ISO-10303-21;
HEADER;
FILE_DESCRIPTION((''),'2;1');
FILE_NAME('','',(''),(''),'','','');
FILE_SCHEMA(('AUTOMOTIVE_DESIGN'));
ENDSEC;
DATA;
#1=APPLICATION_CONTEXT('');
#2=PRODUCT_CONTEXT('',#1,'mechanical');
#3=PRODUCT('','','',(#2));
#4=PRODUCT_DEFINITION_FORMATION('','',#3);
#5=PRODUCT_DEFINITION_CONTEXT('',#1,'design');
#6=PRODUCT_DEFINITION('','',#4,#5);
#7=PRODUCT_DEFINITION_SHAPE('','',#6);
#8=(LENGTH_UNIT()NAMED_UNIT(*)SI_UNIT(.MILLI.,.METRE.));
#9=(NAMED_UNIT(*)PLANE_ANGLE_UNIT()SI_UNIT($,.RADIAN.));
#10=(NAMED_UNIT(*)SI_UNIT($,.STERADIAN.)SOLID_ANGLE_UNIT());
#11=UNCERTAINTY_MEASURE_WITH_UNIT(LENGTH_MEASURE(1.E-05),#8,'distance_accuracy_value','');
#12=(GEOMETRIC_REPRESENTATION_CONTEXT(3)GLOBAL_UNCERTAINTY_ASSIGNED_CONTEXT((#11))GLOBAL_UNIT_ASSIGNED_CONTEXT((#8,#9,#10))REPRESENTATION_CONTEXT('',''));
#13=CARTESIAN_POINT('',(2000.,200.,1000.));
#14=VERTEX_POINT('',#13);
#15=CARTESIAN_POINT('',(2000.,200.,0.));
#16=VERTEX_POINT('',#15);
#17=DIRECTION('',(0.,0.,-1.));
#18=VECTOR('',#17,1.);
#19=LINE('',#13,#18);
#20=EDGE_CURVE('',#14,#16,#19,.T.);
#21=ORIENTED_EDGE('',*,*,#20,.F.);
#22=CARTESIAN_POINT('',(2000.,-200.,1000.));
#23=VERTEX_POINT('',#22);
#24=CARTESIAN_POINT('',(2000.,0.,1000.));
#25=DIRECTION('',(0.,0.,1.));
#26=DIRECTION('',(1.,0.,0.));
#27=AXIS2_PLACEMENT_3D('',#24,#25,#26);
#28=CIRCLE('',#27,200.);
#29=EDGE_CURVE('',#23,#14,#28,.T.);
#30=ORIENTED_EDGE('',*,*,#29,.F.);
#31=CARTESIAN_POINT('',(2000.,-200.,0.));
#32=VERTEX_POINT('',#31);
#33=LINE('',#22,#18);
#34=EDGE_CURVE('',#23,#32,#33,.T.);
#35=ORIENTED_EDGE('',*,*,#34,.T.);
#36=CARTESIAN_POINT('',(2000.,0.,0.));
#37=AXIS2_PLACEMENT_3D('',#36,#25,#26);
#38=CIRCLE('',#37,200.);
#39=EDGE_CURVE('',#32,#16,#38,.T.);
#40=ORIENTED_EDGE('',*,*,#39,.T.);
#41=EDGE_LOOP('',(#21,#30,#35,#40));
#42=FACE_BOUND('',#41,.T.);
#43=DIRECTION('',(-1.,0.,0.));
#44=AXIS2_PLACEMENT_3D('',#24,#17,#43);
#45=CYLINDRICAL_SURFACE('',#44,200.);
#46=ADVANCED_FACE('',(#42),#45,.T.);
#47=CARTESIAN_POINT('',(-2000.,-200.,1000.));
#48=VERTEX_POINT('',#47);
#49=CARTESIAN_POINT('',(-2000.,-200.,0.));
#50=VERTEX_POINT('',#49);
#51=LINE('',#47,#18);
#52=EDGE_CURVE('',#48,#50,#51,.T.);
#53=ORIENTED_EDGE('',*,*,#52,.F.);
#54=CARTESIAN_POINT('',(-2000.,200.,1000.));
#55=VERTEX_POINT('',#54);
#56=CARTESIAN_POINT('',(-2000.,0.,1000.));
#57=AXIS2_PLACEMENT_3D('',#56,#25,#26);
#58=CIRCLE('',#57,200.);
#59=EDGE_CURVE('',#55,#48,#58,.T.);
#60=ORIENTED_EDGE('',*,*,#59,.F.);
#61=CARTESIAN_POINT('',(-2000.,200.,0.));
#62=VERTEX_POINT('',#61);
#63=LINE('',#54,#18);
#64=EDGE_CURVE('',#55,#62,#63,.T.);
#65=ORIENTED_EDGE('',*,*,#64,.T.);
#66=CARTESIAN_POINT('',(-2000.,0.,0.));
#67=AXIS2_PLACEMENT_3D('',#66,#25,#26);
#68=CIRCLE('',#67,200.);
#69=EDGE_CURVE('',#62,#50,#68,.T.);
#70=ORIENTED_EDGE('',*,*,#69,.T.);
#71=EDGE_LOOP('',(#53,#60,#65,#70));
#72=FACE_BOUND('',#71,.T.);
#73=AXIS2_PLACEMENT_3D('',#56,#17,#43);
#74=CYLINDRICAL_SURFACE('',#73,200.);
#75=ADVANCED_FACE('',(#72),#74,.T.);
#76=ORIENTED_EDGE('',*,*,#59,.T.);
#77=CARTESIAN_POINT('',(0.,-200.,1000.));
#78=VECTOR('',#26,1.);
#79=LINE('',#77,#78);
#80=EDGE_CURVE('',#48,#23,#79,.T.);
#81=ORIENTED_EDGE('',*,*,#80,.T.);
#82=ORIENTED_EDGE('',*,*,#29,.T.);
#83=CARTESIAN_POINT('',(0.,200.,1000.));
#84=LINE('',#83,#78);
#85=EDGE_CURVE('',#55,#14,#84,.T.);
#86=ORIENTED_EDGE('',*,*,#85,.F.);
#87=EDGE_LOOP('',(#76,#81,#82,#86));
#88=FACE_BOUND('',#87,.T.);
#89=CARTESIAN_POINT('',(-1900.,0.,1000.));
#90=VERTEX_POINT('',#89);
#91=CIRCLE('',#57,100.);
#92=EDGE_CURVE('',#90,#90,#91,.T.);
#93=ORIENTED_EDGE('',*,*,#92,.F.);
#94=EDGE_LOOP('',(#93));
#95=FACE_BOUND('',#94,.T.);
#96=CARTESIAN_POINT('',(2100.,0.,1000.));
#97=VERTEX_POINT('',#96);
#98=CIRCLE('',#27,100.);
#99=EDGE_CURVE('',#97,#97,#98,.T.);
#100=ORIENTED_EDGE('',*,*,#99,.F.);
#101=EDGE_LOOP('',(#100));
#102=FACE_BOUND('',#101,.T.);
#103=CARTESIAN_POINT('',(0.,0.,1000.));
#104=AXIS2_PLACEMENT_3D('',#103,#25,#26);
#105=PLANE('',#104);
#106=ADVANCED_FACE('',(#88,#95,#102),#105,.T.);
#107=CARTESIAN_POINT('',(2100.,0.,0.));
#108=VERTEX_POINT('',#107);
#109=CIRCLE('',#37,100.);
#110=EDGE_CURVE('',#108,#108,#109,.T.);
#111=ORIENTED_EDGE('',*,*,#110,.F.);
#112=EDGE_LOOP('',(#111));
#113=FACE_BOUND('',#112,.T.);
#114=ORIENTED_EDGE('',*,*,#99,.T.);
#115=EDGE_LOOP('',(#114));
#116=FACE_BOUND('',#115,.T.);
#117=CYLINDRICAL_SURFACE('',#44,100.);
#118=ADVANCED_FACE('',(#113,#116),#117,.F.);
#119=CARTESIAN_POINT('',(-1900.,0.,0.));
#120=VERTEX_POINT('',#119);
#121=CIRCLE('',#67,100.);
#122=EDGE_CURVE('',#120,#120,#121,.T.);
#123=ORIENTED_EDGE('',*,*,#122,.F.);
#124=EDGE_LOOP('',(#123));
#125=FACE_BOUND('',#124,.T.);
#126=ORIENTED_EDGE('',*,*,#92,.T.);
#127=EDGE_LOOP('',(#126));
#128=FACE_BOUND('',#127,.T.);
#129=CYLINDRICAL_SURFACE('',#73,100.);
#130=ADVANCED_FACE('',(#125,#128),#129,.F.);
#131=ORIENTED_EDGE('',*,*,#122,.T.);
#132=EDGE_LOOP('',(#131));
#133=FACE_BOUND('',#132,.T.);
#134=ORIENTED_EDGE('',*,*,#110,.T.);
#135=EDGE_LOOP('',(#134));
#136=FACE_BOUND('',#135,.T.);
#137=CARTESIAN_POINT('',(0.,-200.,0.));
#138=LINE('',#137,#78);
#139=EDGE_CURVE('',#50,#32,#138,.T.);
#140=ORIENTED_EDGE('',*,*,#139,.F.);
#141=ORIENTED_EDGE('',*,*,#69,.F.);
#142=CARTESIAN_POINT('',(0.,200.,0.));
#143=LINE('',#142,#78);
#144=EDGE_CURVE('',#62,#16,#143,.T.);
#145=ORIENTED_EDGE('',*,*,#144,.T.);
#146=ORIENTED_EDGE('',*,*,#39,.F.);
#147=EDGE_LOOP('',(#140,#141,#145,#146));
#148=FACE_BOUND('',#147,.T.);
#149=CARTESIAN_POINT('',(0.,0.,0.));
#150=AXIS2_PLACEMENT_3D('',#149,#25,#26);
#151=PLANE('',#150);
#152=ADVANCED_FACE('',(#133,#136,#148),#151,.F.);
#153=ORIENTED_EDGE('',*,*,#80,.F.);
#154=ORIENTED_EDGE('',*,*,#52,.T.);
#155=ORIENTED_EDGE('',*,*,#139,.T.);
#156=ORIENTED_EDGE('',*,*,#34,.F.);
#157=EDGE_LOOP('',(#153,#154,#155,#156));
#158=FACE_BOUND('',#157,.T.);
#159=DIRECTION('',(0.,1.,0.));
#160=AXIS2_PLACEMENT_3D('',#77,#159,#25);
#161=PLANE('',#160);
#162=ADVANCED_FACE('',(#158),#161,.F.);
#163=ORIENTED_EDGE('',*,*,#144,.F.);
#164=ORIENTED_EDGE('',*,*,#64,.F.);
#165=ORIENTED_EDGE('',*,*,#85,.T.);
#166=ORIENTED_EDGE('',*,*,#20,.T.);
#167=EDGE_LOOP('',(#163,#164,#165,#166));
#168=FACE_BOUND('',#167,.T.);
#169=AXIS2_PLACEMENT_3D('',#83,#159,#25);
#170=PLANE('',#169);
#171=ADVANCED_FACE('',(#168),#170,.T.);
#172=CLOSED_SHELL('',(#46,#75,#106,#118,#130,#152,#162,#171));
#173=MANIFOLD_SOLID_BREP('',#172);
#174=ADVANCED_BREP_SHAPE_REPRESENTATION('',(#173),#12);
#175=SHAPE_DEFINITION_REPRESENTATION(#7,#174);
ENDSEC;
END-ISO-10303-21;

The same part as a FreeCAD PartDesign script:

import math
import FreeCAD as App
import Part
import Sketcher
from FreeCAD import Vector

doc = App.newDocument("Part")
body = doc.addObject("PartDesign::Body", "Body")

# Sketch on XY plane
sketch1 = doc.addObject("Sketcher::SketchObject", "Sketch")
body.addObject(sketch1)
sketch1.AttachmentSupport = (doc.XY_Plane, [""])
sketch1.MapMode = "FlatFace"
sketch1.addGeometry([
    Part.LineSegment(Vector(-2000, -200, 0), Vector(2000, -200, 0)),  # 0
    Part.ArcOfCircle(Part.Circle(Vector(2000, 0, 0), Vector(0, 0, 1), 200), math.radians(-90), math.radians(0)),  # 1
    Part.ArcOfCircle(Part.Circle(Vector(2000, 0, 0), Vector(0, 0, 1), 200), math.radians(0), math.radians(90)),  # 2
    Part.LineSegment(Vector(2000, 200, 0), Vector(-2000, 200, 0)),  # 3
    Part.ArcOfCircle(Part.Circle(Vector(-2000, 0, 0), Vector(0, 0, 1), 200), math.radians(90), math.radians(270)),  # 4
    Part.ArcOfCircle(Part.Circle(Vector(2000, 0, 0), Vector(0, 0, 1), 100), math.radians(90), math.radians(270)),  # 5
    Part.ArcOfCircle(Part.Circle(Vector(2000, 0, 0), Vector(0, 0, 1), 100), math.radians(0), math.radians(90)),  # 6
    Part.ArcOfCircle(Part.Circle(Vector(2000, 0, 0), Vector(0, 0, 1), 100), math.radians(-90), math.radians(0)),  # 7
    Part.ArcOfCircle(Part.Circle(Vector(-2000, 0, 0), Vector(0, 0, 1), 100), math.radians(90), math.radians(270)),  # 8
    Part.ArcOfCircle(Part.Circle(Vector(-2000, 0, 0), Vector(0, 0, 1), 100), math.radians(0), math.radians(90)),  # 9
    Part.ArcOfCircle(Part.Circle(Vector(-2000, 0, 0), Vector(0, 0, 1), 100), math.radians(-90), math.radians(0)),  # 10
], False)
sketch1.addConstraint([
    Sketcher.Constraint("Tangent", 0, 2, 1, 1),
    Sketcher.Constraint("Tangent", 1, 2, 2, 1),
    Sketcher.Constraint("Tangent", 2, 2, 3, 1),
    Sketcher.Constraint("Tangent", 3, 2, 4, 1),
    Sketcher.Constraint("Tangent", 4, 2, 0, 1),
    Sketcher.Constraint("Tangent", 5, 1, 6, 2),
    Sketcher.Constraint("Tangent", 6, 1, 7, 2),
    Sketcher.Constraint("Tangent", 7, 1, 5, 2),
    Sketcher.Constraint("Tangent", 8, 1, 9, 2),
    Sketcher.Constraint("Tangent", 9, 1, 10, 2),
    Sketcher.Constraint("Tangent", 10, 1, 8, 2),
    Sketcher.Constraint("Horizontal", 0),
    Sketcher.Constraint("Horizontal", 3),
    Sketcher.Constraint("Coincident", 5, 3, 1, 3),
    Sketcher.Constraint("Coincident", 8, 3, 4, 3),
    Sketcher.Constraint("Equal", 1, 2),
    Sketcher.Constraint("Equal", 7, 8),
    Sketcher.Constraint("Symmetric", 1, 3, 4, 3, -1, 1),
    Sketcher.Constraint("PointOnObject", 1, 2, -1),
    Sketcher.Constraint("PointOnObject", 6, 1, -1),
    Sketcher.Constraint("PointOnObject", 9, 1, -1),
    Sketcher.Constraint("Vertical", 2, 2, 5, 1),
    Sketcher.Constraint("Vertical", 5, 1, 7, 1),
    Sketcher.Constraint("Vertical", 4, 2, 8, 1),
    Sketcher.Constraint("Vertical", 8, 1, 10, 1),
    Sketcher.Constraint("Radius", 1, 200.0),
    Sketcher.Constraint("Radius", 5, 100.0),
    Sketcher.Constraint("DistanceX", 0, 1, 0, 2, 4000.0),
])
pad1 = doc.addObject("PartDesign::Pad", "Pad")
body.addObject(pad1)
pad1.Profile = sketch1
pad1.Length = 1000

doc.recompute()
